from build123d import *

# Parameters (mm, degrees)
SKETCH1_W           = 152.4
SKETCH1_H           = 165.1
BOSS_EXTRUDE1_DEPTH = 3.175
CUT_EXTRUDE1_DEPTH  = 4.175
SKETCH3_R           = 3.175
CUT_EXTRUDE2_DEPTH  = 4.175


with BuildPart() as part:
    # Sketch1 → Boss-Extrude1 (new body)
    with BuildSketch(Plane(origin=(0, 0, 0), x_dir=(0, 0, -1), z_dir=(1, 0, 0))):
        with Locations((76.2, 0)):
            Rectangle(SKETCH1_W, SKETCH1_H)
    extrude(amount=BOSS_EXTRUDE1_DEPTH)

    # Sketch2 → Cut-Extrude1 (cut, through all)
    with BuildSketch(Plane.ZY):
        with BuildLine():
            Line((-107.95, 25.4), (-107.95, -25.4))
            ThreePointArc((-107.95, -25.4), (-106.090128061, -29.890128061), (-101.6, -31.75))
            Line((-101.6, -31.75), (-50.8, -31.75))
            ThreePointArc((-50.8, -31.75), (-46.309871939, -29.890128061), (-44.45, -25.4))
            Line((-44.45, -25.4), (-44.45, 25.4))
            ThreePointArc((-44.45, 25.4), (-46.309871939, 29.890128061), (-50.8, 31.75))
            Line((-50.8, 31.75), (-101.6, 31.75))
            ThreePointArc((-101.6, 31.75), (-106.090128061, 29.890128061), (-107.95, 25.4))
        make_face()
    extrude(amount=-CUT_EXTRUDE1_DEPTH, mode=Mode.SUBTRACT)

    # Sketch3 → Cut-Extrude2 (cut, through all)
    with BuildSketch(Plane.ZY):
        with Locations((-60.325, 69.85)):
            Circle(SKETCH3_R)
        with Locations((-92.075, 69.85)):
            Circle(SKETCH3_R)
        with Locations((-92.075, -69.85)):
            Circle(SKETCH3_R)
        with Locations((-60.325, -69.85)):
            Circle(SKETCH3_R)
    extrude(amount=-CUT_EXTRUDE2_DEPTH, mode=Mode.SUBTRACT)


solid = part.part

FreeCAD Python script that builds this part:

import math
import FreeCAD as App
import Part
import Sketcher
from FreeCAD import Vector
Q = App.Units.Quantity


def add_polygon(sketch, points):
    """Adds a closed chain of lines whose ends are joined by coincident constraints."""
    first, n = sketch.GeometryCount, len(points)
    for a, b in zip(points, points[1:] + points[:1]):
        sketch.addGeometry(Part.LineSegment(App.Vector(*a, 0), App.Vector(*b, 0)), False)
    for i in range(n):
        sketch.addConstraint(Sketcher.Constraint("Coincident", first + i, 2, first + (i + 1) % n, 1))

doc = App.newDocument("Part")
body = doc.addObject("PartDesign::Body", "Body")

# Sketch on YZ plane
sketch1 = body.newObject("Sketcher::SketchObject", "Sketch")
sketch1.AttachmentSupport = (doc.getObject("YZ_Plane"), [""])
sketch1.MapMode = "FlatFace"
add_polygon(sketch1, [(82.55, 0), (-82.55, 0), (-82.55, -152.4), (82.55, -152.4)])  # lines 0-3
sketch1.addConstraint([
    Sketcher.Constraint("Horizontal", 0),
    Sketcher.Constraint("Vertical", 1),
    Sketcher.Constraint("Horizontal", 2),
    Sketcher.Constraint("Vertical", 3),
    Sketcher.Constraint("Symmetric", 0, 2, 3, 2, -1, 1),
    Sketcher.Constraint("DistanceY", 1, 2, 1, 1, Q("6 in")),
    Sketcher.Constraint("DistanceX", 0, 2, 0, 1, Q("6.5 in")),
])
pad1 = body.newObject("PartDesign::Pad", "Pad")
pad1.Profile = sketch1
pad1.Length = Q("0.125 in")

# Sketch on YZ plane
sketch2 = body.newObject("Sketcher::SketchObject", "Sketch001")
sketch2.AttachmentSupport = (doc.getObject("YZ_Plane"), [""])
sketch2.MapMode = "FlatFace"
sketch2.addGeometry([
    Part.LineSegment(Vector(25.4, -107.95, 0), Vector(-25.4, -107.95, 0)),  # 0
    Part.ArcOfCircle(Part.Circle(Vector(-25.4, -101.6, 0), Vector(0, 0, 1), 6.35), math.radians(180), math.radians(270)),  # 1
    Part.LineSegment(Vector(-31.75, -101.6, 0), Vector(-31.75, -50.8, 0)),  # 2
    Part.ArcOfCircle(Part.Circle(Vector(-25.4, -50.8, 0), Vector(0, 0, 1), 6.35), math.radians(90), math.radians(180)),  # 3
    Part.LineSegment(Vector(-25.4, -44.45, 0), Vector(25.4, -44.45, 0)),  # 4
    Part.ArcOfCircle(Part.Circle(Vector(25.4, -50.8, 0), Vector(0, 0, 1), 6.35), math.radians(0), math.radians(90)),  # 5
    Part.LineSegment(Vector(31.75, -50.8, 0), Vector(31.75, -101.6, 0)),  # 6
    Part.ArcOfCircle(Part.Circle(Vector(25.4, -101.6, 0), Vector(0, 0, 1), 6.35), math.radians(-90), math.radians(0)),  # 7
], False)
sketch2.addConstraint([
    Sketcher.Constraint("Tangent", 0, 2, 1, 2),
    Sketcher.Constraint("Tangent", 1, 1, 2, 1),
    Sketcher.Constraint("Tangent", 2, 2, 3, 2),
    Sketcher.Constraint("Tangent", 3, 1, 4, 1),
    Sketcher.Constraint("Tangent", 4, 2, 5, 2),
    Sketcher.Constraint("Tangent", 5, 1, 6, 1),
    Sketcher.Constraint("Tangent", 6, 2, 7, 2),
    Sketcher.Constraint("Tangent", 7, 1, 0, 1),
    Sketcher.Constraint("Horizontal", 0),
    Sketcher.Constraint("Vertical", 2),
    Sketcher.Constraint("Horizontal", 4),
    Sketcher.Constraint("Vertical", 6),
    Sketcher.Constraint("Equal", 1, 3),
    Sketcher.Constraint("Equal", 3, 5),
    Sketcher.Constraint("Equal", 5, 7),
    Sketcher.Constraint("Equal", 4, 2),
    Sketcher.Constraint("DistanceX", 0, 2, 0, 1, Q("2 in")),
    Sketcher.Constraint("Radius", 1, Q("0.25 in")),
    Sketcher.Constraint("DistanceX", 1, 3, -1, 1, Q("1 in")),
    Sketcher.Constraint("DistanceY", 1, 3, -1, 1, Q("4 in")),
])
pocket1 = body.newObject("PartDesign::Pocket", "Pocket")
pocket1.Profile = sketch2
pocket1.Type = "ThroughAll"
pocket1.Reversed = True

# Sketch on YZ plane
sketch3 = body.newObject("Sketcher::SketchObject", "Sketch002")
sketch3.AttachmentSupport = (doc.getObject("YZ_Plane"), [""])
sketch3.MapMode = "FlatFace"
sketch3.addGeometry([
    Part.Circle(Vector(69.85, -60.325, 0), Vector(0, 0, 1), 3.175),
    Part.Circle(Vector(69.85, -92.075, 0), Vector(0, 0, 1), 3.175),
    Part.Circle(Vector(-69.85, -92.075, 0), Vector(0, 0, 1), 3.175),
    Part.Circle(Vector(-69.85, -60.325, 0), Vector(0, 0, 1), 3.175),
], False)
sketch3.addConstraint([
    Sketcher.Constraint("Equal", 0, 1),
    Sketcher.Constraint("Equal", 1, 2),
    Sketcher.Constraint("Equal", 2, 3),
    Sketcher.Constraint("Symmetric", 1, 3, 2, 3, -2),
    Sketcher.Constraint("Symmetric", 0, 3, 3, 3, -2),
    Sketcher.Constraint("Vertical", 0, 3, 1, 3),
    Sketcher.Constraint("Diameter", 0, Q("0.25 in")),
    Sketcher.Constraint("DistanceX", 2, 3, 1, 3, Q("5.5 in")),
    Sketcher.Constraint("DistanceY", 1, 3, 0, 3, Q("1.25 in")),
    Sketcher.Constraint("DistanceY", 0, 3, -1, 1, Q("2.375 in")),
])
pocket2 = body.newObject("PartDesign::Pocket", "Pocket001")
pocket2.Profile = sketch3
pocket2.Type = "ThroughAll"
pocket2.Reversed = True

doc.recompute()
